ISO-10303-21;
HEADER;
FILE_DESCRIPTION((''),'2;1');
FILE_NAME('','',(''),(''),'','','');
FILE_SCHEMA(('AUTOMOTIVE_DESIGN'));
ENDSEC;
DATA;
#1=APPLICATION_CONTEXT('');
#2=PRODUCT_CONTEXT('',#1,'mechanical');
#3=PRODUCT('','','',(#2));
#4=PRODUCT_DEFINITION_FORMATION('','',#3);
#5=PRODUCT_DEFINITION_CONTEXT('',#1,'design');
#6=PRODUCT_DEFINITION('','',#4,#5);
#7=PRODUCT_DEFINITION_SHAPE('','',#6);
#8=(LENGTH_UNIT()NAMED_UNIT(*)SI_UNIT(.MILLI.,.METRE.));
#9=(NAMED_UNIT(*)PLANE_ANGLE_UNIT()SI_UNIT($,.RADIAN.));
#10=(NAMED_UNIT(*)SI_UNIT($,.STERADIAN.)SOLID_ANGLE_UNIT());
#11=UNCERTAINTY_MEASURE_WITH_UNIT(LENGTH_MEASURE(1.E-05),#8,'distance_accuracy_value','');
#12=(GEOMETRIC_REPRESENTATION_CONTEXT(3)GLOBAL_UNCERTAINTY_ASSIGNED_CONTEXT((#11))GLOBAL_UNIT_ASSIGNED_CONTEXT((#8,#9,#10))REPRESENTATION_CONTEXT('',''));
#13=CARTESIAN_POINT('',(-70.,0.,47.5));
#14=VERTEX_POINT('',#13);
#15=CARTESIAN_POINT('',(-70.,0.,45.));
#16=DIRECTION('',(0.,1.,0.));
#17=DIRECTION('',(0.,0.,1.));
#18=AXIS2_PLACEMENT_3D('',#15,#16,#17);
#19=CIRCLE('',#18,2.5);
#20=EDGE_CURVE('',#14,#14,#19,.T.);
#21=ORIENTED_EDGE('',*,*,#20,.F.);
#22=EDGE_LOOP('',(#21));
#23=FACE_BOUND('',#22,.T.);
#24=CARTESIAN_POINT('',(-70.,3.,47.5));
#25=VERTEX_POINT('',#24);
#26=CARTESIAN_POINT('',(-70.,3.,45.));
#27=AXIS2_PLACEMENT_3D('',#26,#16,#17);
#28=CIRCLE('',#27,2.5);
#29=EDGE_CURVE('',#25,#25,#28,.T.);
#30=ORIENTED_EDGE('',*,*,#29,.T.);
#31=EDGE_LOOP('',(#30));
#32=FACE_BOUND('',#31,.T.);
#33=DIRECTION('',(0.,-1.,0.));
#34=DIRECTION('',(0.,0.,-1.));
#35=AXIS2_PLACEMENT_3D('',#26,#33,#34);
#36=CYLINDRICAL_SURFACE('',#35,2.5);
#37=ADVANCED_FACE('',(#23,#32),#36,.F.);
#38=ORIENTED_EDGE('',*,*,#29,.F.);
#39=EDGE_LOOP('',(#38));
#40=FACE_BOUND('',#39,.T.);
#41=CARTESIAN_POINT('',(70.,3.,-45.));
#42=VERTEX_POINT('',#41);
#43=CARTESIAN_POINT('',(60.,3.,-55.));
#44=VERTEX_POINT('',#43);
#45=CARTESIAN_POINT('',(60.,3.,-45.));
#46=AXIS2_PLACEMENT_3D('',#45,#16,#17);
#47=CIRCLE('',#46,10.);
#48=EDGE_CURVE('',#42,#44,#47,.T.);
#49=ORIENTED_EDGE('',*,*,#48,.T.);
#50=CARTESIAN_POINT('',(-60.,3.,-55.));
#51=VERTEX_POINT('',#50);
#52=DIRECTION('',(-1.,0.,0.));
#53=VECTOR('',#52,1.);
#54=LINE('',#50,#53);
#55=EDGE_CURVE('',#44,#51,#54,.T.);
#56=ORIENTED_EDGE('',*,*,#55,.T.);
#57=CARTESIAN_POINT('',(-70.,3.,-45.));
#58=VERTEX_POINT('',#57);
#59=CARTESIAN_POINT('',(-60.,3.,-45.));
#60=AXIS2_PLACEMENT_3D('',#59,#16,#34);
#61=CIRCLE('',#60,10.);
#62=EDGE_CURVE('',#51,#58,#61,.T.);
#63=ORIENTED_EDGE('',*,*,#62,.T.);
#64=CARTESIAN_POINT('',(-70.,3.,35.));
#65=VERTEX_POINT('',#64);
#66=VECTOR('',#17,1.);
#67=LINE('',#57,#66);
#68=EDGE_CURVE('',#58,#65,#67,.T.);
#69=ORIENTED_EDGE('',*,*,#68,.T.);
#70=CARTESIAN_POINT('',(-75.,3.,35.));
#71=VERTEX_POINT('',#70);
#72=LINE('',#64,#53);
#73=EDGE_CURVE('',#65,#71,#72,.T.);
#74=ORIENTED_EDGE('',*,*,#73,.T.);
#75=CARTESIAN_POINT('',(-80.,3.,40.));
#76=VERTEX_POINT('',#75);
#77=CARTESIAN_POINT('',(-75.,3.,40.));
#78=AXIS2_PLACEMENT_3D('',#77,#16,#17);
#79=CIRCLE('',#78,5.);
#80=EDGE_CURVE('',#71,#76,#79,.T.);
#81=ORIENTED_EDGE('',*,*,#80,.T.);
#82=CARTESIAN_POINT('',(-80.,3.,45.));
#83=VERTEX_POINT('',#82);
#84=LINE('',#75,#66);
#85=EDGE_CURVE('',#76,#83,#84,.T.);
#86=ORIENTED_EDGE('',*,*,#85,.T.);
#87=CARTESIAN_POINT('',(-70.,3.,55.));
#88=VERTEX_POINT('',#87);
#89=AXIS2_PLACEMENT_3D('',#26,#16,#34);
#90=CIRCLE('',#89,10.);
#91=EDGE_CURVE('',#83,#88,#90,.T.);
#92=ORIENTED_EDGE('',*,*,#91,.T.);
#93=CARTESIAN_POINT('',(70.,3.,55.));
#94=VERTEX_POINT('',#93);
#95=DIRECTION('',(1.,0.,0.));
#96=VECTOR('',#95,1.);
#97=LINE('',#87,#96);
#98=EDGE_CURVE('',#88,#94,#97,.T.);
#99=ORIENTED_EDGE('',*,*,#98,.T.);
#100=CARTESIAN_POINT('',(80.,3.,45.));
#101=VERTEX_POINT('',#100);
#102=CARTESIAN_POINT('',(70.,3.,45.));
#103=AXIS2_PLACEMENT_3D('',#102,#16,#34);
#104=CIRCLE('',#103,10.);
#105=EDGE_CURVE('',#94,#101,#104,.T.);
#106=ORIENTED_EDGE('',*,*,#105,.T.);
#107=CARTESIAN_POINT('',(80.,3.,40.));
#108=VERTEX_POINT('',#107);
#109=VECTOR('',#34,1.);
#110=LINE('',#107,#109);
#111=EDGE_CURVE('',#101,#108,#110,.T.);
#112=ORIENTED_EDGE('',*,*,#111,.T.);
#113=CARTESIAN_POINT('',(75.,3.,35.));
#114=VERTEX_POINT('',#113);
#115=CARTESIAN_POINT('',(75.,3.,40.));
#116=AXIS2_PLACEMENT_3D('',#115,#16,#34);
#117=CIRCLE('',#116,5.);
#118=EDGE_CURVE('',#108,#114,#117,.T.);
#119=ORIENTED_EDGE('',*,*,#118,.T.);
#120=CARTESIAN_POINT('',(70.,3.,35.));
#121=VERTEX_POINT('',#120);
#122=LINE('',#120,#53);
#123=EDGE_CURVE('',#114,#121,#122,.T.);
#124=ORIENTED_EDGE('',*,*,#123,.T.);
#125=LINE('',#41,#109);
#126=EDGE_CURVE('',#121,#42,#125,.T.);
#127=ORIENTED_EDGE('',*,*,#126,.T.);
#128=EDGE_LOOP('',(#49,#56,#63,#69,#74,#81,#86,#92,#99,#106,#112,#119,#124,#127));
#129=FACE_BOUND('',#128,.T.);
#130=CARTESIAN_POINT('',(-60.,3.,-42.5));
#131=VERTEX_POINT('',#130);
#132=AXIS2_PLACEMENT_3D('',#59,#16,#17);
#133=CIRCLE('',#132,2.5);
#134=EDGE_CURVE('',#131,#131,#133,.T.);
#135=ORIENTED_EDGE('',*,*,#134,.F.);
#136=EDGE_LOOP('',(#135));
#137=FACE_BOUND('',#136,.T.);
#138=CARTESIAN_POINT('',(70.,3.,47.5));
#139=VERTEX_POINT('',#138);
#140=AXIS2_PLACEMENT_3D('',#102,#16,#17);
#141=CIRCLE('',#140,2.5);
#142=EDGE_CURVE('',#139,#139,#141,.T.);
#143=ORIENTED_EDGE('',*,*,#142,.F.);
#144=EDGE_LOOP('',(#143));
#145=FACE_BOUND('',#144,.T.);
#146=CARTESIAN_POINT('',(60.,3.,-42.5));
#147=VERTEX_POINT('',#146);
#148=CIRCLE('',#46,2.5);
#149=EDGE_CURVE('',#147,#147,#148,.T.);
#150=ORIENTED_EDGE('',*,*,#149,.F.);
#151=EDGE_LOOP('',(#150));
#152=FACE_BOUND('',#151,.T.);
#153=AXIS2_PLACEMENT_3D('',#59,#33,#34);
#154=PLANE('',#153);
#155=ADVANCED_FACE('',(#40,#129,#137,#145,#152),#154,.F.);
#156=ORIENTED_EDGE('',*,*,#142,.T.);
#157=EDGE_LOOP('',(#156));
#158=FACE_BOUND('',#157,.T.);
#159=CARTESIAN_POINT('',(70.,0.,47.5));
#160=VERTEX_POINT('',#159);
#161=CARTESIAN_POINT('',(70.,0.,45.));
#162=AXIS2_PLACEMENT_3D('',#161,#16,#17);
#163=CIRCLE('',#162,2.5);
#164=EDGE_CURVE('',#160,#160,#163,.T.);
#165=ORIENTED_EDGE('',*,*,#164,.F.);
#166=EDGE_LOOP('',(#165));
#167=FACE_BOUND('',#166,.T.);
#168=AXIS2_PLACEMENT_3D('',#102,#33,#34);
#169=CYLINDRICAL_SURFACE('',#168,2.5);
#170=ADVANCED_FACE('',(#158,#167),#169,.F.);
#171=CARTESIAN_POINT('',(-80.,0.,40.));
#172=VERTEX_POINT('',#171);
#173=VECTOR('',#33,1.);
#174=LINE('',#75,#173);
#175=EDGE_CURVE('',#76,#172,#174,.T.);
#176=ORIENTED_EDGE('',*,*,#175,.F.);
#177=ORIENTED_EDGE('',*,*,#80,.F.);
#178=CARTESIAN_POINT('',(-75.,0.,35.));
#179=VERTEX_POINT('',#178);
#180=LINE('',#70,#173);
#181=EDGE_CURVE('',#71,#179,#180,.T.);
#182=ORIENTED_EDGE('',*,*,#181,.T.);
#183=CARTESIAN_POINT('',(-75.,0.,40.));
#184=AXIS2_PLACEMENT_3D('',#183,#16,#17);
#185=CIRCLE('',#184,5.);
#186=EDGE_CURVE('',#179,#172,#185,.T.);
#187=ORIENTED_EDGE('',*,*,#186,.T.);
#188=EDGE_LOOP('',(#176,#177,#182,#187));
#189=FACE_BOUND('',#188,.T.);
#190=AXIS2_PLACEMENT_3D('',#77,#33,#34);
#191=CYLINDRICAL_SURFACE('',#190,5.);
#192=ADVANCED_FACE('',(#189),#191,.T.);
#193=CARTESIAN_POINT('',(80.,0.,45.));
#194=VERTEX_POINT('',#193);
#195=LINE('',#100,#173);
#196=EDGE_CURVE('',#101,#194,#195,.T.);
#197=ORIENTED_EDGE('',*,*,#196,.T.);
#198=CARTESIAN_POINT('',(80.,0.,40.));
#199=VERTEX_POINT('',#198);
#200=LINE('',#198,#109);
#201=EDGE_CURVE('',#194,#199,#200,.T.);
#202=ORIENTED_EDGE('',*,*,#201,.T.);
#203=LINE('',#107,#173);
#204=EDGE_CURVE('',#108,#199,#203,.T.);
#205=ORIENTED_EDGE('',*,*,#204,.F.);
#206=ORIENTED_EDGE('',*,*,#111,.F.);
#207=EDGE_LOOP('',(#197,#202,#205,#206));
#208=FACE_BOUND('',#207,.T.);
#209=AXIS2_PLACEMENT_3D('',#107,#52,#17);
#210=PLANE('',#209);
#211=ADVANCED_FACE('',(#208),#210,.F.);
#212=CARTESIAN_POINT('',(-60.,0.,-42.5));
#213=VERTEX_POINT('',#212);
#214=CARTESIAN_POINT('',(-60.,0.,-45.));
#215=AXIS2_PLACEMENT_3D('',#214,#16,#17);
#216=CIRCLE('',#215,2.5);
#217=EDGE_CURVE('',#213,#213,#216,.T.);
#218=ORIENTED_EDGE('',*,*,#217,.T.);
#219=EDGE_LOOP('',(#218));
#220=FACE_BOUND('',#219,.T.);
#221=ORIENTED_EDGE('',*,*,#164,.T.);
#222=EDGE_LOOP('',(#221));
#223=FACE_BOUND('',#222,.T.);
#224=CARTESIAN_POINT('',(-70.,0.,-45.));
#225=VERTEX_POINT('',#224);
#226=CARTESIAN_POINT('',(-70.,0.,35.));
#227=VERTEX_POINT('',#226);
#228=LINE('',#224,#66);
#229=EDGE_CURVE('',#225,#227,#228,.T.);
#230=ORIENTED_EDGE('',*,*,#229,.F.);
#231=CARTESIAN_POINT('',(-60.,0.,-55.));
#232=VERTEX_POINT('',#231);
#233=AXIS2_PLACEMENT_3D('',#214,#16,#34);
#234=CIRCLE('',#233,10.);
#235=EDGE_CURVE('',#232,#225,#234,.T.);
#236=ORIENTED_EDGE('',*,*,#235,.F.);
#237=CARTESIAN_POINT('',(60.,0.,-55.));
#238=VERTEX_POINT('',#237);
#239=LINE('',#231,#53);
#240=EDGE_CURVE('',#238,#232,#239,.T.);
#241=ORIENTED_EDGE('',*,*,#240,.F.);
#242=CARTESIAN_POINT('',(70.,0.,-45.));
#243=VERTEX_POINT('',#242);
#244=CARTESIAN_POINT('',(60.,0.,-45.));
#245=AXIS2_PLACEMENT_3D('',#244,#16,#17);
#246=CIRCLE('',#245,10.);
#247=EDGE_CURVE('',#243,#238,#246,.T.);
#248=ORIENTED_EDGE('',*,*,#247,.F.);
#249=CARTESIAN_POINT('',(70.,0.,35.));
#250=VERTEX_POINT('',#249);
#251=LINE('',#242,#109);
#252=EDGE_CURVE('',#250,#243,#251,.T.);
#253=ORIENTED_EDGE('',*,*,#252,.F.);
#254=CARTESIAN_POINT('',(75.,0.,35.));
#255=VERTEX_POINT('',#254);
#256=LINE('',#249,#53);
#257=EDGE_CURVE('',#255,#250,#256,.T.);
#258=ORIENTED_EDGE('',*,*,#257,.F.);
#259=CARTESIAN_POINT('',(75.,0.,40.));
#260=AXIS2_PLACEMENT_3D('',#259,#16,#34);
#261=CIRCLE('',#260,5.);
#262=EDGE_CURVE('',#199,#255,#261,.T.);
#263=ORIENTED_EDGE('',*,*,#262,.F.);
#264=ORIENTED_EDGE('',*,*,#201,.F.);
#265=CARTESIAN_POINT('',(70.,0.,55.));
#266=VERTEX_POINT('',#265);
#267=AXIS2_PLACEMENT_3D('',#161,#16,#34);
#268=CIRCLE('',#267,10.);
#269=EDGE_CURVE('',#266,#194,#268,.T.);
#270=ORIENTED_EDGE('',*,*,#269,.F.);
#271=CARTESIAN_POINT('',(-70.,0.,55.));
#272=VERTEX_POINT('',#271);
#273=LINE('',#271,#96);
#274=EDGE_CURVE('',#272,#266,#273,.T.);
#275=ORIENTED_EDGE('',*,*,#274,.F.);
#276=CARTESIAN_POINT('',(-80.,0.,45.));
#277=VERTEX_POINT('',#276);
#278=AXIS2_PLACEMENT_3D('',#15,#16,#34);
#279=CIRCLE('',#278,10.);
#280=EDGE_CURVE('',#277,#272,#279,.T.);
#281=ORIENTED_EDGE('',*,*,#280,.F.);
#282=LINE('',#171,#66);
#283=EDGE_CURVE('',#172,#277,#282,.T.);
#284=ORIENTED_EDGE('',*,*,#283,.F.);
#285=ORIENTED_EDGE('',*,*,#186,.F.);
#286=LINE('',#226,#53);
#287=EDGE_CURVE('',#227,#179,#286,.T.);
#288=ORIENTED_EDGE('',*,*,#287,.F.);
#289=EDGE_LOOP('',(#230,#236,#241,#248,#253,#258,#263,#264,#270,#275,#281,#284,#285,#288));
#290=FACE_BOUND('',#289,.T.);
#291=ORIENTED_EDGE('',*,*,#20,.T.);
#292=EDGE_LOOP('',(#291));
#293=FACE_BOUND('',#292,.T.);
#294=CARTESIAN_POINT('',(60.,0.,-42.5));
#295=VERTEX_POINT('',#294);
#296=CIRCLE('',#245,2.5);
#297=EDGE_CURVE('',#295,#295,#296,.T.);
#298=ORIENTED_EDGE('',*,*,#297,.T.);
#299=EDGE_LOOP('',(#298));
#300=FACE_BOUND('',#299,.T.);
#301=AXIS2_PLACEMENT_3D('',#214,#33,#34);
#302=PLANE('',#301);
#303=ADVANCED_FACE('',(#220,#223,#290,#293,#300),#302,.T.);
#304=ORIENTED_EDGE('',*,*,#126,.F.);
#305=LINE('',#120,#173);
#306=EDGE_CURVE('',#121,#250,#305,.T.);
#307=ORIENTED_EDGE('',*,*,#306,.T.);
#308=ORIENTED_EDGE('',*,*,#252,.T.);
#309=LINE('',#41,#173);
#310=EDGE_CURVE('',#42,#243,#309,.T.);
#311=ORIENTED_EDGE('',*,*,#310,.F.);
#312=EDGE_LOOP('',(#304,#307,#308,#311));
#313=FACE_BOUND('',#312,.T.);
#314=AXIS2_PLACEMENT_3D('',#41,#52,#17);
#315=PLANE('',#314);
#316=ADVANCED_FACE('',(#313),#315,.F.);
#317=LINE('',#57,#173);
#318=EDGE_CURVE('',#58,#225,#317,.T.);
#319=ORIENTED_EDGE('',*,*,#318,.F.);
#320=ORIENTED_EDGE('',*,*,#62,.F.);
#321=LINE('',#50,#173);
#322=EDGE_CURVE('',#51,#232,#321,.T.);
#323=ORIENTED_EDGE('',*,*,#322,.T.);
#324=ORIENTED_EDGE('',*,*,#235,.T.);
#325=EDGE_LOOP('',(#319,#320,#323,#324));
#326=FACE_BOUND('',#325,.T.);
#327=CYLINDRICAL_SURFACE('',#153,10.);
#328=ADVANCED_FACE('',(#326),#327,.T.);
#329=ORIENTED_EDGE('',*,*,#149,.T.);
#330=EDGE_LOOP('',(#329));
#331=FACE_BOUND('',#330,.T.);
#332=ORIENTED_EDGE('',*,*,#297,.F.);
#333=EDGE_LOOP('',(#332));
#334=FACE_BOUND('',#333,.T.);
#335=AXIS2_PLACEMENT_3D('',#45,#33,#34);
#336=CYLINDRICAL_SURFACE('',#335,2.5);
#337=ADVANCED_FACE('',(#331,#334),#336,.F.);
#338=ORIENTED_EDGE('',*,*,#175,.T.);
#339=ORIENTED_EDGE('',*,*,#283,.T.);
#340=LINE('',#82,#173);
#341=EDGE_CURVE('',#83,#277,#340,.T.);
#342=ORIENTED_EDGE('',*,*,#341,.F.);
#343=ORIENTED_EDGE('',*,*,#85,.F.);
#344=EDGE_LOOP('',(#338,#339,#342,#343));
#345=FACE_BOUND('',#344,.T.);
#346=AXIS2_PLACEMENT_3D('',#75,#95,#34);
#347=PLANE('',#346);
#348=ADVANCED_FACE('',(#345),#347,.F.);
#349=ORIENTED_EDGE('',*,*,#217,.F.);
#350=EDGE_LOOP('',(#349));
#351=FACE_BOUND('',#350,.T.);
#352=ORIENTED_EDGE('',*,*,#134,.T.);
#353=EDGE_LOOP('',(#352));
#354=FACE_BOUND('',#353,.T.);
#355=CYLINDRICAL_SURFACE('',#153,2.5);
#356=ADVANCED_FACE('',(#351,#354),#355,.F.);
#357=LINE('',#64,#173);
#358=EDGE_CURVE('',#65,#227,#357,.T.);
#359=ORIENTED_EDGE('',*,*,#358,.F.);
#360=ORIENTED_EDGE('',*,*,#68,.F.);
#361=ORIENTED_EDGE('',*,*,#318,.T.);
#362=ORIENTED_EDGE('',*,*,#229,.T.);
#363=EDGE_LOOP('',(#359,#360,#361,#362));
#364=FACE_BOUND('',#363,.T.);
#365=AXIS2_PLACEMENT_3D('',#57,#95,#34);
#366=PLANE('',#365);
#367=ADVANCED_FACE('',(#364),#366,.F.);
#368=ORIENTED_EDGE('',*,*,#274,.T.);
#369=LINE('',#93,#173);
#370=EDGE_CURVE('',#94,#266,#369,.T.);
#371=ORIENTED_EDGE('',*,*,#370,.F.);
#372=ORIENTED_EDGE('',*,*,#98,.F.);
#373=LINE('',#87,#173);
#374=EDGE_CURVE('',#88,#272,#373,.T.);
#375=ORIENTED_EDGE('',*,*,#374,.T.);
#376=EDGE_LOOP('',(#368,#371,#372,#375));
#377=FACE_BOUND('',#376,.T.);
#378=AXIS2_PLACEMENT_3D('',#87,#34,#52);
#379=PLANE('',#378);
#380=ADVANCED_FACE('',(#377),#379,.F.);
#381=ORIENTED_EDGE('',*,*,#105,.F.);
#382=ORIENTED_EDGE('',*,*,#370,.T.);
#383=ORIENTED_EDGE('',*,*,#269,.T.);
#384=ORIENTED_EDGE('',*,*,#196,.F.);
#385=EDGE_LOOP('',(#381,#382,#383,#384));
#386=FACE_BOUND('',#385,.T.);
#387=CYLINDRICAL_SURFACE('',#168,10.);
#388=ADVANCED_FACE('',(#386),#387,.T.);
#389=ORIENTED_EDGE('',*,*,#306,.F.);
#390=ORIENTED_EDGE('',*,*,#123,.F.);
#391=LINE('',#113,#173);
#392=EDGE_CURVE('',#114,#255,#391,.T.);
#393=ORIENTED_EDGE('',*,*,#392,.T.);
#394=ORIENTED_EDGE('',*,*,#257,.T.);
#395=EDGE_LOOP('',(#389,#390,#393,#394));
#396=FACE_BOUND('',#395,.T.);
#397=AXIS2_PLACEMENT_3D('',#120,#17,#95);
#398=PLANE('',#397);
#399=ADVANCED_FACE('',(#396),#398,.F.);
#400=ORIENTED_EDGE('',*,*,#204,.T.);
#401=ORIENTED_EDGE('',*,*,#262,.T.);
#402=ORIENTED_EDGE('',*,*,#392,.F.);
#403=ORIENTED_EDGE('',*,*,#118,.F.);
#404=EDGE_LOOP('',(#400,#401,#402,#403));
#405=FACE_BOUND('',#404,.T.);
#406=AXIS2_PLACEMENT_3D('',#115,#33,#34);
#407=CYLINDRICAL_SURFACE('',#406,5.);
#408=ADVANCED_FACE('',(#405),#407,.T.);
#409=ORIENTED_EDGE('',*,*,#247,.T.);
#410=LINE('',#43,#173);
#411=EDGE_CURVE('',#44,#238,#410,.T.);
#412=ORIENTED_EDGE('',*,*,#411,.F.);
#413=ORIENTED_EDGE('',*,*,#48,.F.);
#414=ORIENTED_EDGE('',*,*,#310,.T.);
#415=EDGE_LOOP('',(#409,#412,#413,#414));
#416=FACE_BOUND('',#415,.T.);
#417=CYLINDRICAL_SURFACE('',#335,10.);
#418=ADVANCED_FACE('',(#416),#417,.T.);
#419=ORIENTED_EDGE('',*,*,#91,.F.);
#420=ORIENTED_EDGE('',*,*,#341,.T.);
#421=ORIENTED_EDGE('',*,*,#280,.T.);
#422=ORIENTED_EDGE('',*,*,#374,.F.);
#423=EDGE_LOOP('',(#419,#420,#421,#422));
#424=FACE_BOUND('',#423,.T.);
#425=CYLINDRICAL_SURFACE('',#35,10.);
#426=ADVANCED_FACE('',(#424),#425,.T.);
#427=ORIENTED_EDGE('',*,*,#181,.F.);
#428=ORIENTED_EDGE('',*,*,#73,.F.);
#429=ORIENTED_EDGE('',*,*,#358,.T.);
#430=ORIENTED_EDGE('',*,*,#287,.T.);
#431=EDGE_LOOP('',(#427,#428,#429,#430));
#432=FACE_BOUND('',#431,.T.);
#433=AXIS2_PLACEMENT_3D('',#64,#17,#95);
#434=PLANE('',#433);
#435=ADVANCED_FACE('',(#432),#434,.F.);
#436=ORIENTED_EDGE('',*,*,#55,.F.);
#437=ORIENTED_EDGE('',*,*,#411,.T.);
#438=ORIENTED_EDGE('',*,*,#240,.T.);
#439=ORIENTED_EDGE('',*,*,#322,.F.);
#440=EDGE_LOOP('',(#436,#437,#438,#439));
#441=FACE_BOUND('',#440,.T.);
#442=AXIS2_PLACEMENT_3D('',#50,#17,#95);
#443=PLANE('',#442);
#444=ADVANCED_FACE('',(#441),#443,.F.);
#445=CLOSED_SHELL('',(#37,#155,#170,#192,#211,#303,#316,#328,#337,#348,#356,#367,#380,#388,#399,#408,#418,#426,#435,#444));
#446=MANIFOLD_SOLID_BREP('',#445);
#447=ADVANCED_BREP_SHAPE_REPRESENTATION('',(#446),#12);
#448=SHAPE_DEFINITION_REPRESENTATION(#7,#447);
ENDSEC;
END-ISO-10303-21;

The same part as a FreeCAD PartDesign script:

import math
import FreeCAD as App
import Part
import Sketcher

doc = App.newDocument("Part")
body = doc.addObject("PartDesign::Body", "Body")

sketch1 = body.newObject("Sketcher::SketchObject", "Sketch")
sketch1.AttachmentSupport = (doc.getObject("XZ_Plane"), [""])
sketch1.MapMode = "FlatFace"
sketch1.addGeometry(Part.LineSegment(App.Vector(60, -55, 0), App.Vector(-60, -55, 0)), False)
sketch1.addGeometry(Part.ArcOfCircle(Part.Circle(App.Vector(-60, -45, 0), App.Vector(0, 0, 1), 10), math.radians(180), math.radians(270)), False)
sketch1.addGeometry(Part.LineSegment(App.Vector(-70, -45, 0), App.Vector(-70, 35, 0)), False)
sketch1.addGeometry(Part.LineSegment(App.Vector(-70, 35, 0), App.Vector(-75, 35, 0)), False)
sketch1.addGeometry(Part.ArcOfCircle(Part.Circle(App.Vector(-75, 40, 0), App.Vector(0, 0, 1), 5), math.radians(180), math.radians(270)), False)
sketch1.addGeometry(Part.LineSegment(App.Vector(-80, 40, 0), App.Vector(-80, 45, 0)), False)
sketch1.addGeometry(Part.ArcOfCircle(Part.Circle(App.Vector(-70, 45, 0), App.Vector(0, 0, 1), 10), math.radians(90), math.radians(180)), False)
sketch1.addGeometry(Part.LineSegment(App.Vector(-70, 55, 0), App.Vector(70, 55, 0)), False)
sketch1.addGeometry(Part.ArcOfCircle(Part.Circle(App.Vector(70, 45, 0), App.Vector(0, 0, 1), 10), math.radians(0), math.radians(90)), False)
sketch1.addGeometry(Part.LineSegment(App.Vector(80, 45, 0), App.Vector(80, 40, 0)), False)
sketch1.addGeometry(Part.ArcOfCircle(Part.Circle(App.Vector(75, 40, 0), App.Vector(0, 0, 1), 5), math.radians(-90), math.radians(0)), False)
sketch1.addGeometry(Part.LineSegment(App.Vector(75, 35, 0), App.Vector(70, 35, 0)), False)
sketch1.addGeometry(Part.LineSegment(App.Vector(70, 35, 0), App.Vector(70, -45, 0)), False)
sketch1.addGeometry(Part.ArcOfCircle(Part.Circle(App.Vector(60, -45, 0), App.Vector(0, 0, 1), 10), math.radians(-90), math.radians(0)), False)
sketch1.addGeometry(Part.Circle(App.Vector(70, 45, 0), App.Vector(0, 0, 1), 2.5), False)
sketch1.addGeometry(Part.Circle(App.Vector(-70, 45, 0), App.Vector(0, 0, 1), 2.5), False)
sketch1.addGeometry(Part.Circle(App.Vector(60, -45, 0), App.Vector(0, 0, 1), 2.5), False)
sketch1.addGeometry(Part.Circle(App.Vector(-60, -45, 0), App.Vector(0, 0, 1), 2.5), False)
sketch1.addConstraint(Sketcher.Constraint("Tangent", 0, 2, 1, 2))
sketch1.addConstraint(Sketcher.Constraint("Tangent", 1, 1, 2, 1))
sketch1.addConstraint(Sketcher.Constraint("Coincident", 2, 2, 3, 1))
sketch1.addConstraint(Sketcher.Constraint("Tangent", 3, 2, 4, 2))
sketch1.addConstraint(Sketcher.Constraint("Tangent", 4, 1, 5, 1))
sketch1.addConstraint(Sketcher.Constraint("Tangent", 5, 2, 6, 2))
sketch1.addConstraint(Sketcher.Constraint("Tangent", 6, 1, 7, 1))
sketch1.addConstraint(Sketcher.Constraint("Tangent", 7, 2, 8, 2))
sketch1.addConstraint(Sketcher.Constraint("Tangent", 8, 1, 9, 1))
sketch1.addConstraint(Sketcher.Constraint("Tangent", 9, 2, 10, 2))
sketch1.addConstraint(Sketcher.Constraint("Tangent", 10, 1, 11, 1))
sketch1.addConstraint(Sketcher.Constraint("Coincident", 11, 2, 12, 1))
sketch1.addConstraint(Sketcher.Constraint("Tangent", 12, 2, 13, 2))
sketch1.addConstraint(Sketcher.Constraint("Tangent", 13, 1, 0, 1))
sketch1.addConstraint(Sketcher.Constraint("Horizontal", 0))
sketch1.addConstraint(Sketcher.Constraint("Vertical", 2))
sketch1.addConstraint(Sketcher.Constraint("Horizontal", 3))
sketch1.addConstraint(Sketcher.Constraint("Vertical", 5))
sketch1.addConstraint(Sketcher.Constraint("Horizontal", 7))
sketch1.addConstraint(Sketcher.Constraint("Vertical", 9))
sketch1.addConstraint(Sketcher.Constraint("Horizontal", 11))
sketch1.addConstraint(Sketcher.Constraint("Vertical", 12))
sketch1.addConstraint(Sketcher.Constraint("Coincident", 14, 3, 8, 3))
sketch1.addConstraint(Sketcher.Constraint("Coincident", 15, 3, 6, 3))
sketch1.addConstraint(Sketcher.Constraint("Coincident", 16, 3, 13, 3))
sketch1.addConstraint(Sketcher.Constraint("Coincident", 17, 3, 1, 3))
sketch1.addConstraint(Sketcher.Constraint("Equal", 1, 6))
sketch1.addConstraint(Sketcher.Constraint("Equal", 6, 8))
sketch1.addConstraint(Sketcher.Constraint("Equal", 4, 10))
sketch1.addConstraint(Sketcher.Constraint("Equal", 8, 13))
sketch1.addConstraint(Sketcher.Constraint("Equal", 14, 15))
sketch1.addConstraint(Sketcher.Constraint("Equal", 15, 16))
sketch1.addConstraint(Sketcher.Constraint("Equal", 16, 17))
sketch1.addConstraint(Sketcher.Constraint("Symmetric", 4, 3, 10, 3, -2))
sketch1.addConstraint(Sketcher.Constraint("Vertical", 15, 3, 1, 1))
sketch1.addConstraint(Sketcher.Constraint("Vertical", 7, 2, 11, 2))
sketch1.addConstraint(Sketcher.Constraint("Equal", 11, 5))
sketch1.addConstraint(Sketcher.Constraint("Diameter", 14, 5.0))
sketch1.addConstraint(Sketcher.Constraint("Radius", 1, 10.0))
sketch1.addConstraint(Sketcher.Constraint("Radius", 4, 5.0))
sketch1.addConstraint(Sketcher.Constraint("DistanceX", 0, 2, 0, 1, 120.0))
sketch1.addConstraint(Sketcher.Constraint("DistanceY", 2, 1, 2, 2, 80.0))
sketch1.addConstraint(Sketcher.Constraint("DistanceY", 1, 3, -1, 1, 45.0))
pad1 = body.newObject("PartDesign::Pad", "Pad")
pad1.Profile = sketch1
pad1.Length = 3
pad1.Reversed = True

doc.recompute()
